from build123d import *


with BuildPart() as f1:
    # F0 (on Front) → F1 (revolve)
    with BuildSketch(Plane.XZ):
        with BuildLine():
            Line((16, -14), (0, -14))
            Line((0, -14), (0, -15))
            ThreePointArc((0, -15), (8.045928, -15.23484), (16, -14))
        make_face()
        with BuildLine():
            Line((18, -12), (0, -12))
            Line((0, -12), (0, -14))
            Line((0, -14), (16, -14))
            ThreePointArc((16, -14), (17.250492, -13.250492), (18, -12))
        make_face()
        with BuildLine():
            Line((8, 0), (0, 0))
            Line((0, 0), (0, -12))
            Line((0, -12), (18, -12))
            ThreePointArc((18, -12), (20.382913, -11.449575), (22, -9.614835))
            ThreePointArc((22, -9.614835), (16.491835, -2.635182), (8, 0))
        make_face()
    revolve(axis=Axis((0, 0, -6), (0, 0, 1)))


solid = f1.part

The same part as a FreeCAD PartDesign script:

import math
import FreeCAD as App
import Part
import Sketcher
Q = App.Units.Quantity

doc = App.newDocument("Part")
body = doc.addObject("PartDesign::Body", "Body")

sketch1 = body.newObject("Sketcher::SketchObject", "Sketch")
sketch1.AttachmentSupport = (doc.getObject("XZ_Plane"), [""])
sketch1.MapMode = "FlatFace"
sketch1.addGeometry([
    Part.ArcOfCircle(Part.Circle(App.Vector(5.3, 28.7, 0), App.Vector(0, 0, 1), 44), math.radians(-97), math.radians(-76)),
    Part.ArcOfCircle(Part.Circle(App.Vector(15.1, -11.1, 0), App.Vector(0, 0, 1), 3), math.radians(-73), math.radians(-17)),
    Part.ArcOfCircle(Part.Circle(App.Vector(18.3, -8, 0), App.Vector(0, 0, 1), 4), math.radians(-95), math.radians(-24)),
    Part.ArcOfCircle(Part.Circle(App.Vector(8, -15, 0), App.Vector(0, 0, 1), 15), math.radians(21), math.radians(90)),
    Part.LineSegment(App.Vector(8, 0, 0), App.Vector(0, 0, 0)),
    Part.LineSegment(App.Vector(0, 0, 0), App.Vector(0, -15, 0)),
], False)
sketch1.addConstraint([
    Sketcher.Constraint("Coincident", 0, 2, 1, 1),
    Sketcher.Constraint("Coincident", 1, 2, 2, 1),
    Sketcher.Constraint("Coincident", 2, 2, 3, 1),
    Sketcher.Constraint("Tangent", 3, 2, 4, 1),
    Sketcher.Constraint("Coincident", 4, 2, 5, 1),
    Sketcher.Constraint("Coincident", 5, 2, 0, 1),
    Sketcher.Constraint("Horizontal", 4),
    Sketcher.Constraint("Vertical", 5),
    Sketcher.Constraint("Coincident", 4, 2, -1, 1),
    Sketcher.Constraint("Radius", 0, Q("43.999999 mm")),
    Sketcher.Constraint("Radius", 2, Q("3.999999 mm")),
    Sketcher.Constraint("DistanceX", 4, 2, 4, 1, Q("8 mm")),
    Sketcher.Constraint("DistanceY", 5, 2, 5, 1, Q("15 mm")),
    Sketcher.Constraint("DistanceX", -1, 1, 0, 2, Q("16 mm")),
    Sketcher.Constraint("DistanceY", 0, 2, -1, 1, Q("14 mm")),
    Sketcher.Constraint("DistanceX", -1, 1, 1, 2, Q("18 mm")),
    Sketcher.Constraint("DistanceY", 1, 2, -1, 1, Q("12 mm")),
    Sketcher.Constraint("DistanceX", -1, 1, 2, 2, Q("22 mm")),
    Sketcher.Constraint("Radius", 1, Q("2.999996 mm")),
    Sketcher.Constraint("Radius", 3, Q("15.000002 mm")),
])
revolution = body.newObject("PartDesign::Revolution", "Revolution")
revolution.Profile = sketch1
revolution.ReferenceAxis = (sketch1, ["V_Axis"])
revolution.Angle = 360

doc.recompute()
